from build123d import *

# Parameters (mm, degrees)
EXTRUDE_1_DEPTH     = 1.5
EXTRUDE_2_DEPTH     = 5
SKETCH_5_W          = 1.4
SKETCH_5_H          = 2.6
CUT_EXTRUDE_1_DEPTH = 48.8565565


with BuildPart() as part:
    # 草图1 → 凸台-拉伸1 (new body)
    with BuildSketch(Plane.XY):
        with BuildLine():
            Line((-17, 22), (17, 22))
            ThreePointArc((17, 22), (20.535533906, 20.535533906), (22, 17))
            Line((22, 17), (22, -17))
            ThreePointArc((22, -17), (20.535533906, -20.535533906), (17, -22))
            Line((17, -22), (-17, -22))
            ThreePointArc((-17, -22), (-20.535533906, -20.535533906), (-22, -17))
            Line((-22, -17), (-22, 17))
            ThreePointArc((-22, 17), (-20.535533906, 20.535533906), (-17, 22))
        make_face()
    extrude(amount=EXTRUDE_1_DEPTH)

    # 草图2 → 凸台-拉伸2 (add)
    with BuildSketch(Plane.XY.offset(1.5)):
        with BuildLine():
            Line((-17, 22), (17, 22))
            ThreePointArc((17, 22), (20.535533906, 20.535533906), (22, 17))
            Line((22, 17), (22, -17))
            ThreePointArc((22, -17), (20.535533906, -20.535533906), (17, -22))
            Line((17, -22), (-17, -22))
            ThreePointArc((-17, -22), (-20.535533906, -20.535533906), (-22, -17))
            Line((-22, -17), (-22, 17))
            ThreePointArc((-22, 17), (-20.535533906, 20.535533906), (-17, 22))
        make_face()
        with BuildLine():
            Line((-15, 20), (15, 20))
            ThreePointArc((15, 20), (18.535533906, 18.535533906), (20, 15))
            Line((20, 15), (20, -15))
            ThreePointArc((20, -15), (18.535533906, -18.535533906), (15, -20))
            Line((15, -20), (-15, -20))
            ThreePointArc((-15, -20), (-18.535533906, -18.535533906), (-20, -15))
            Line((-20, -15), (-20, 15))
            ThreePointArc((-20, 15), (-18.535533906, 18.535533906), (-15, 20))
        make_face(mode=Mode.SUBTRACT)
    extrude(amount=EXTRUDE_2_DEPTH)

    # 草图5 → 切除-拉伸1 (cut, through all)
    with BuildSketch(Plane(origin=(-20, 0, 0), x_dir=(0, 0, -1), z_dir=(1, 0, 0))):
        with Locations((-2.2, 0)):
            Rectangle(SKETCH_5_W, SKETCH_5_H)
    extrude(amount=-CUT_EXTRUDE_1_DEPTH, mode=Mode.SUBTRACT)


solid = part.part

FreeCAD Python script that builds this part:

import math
import FreeCAD as App
import Part
import Sketcher

V = App.Vector

doc = App.newDocument("Part")
body = doc.addObject("PartDesign::Body", "Body")

sketch1 = doc.addObject("Sketcher::SketchObject", "Sketch")
body.addObject(sketch1)
sketch1.AttachmentSupport = (doc.XY_Plane, [""])
sketch1.MapMode = "FlatFace"
sketch1.addGeometry(Part.LineSegment(V(17, 22, 0), V(-17, 22, 0)), False)
sketch1.addGeometry(Part.ArcOfCircle(Part.Circle(V(-17, 17, 0), V(0, 0, 1), 5), math.radians(90), math.radians(180)), False)
sketch1.addGeometry(Part.LineSegment(V(-22, 17, 0), V(-22, -17, 0)), False)
sketch1.addGeometry(Part.ArcOfCircle(Part.Circle(V(-17, -17, 0), V(0, 0, 1), 5), math.radians(180), math.radians(270)), False)
sketch1.addGeometry(Part.LineSegment(V(-17, -22, 0), V(17, -22, 0)), False)
sketch1.addGeometry(Part.ArcOfCircle(Part.Circle(V(17, -17, 0), V(0, 0, 1), 5), math.radians(-90), math.radians(0)), False)
sketch1.addGeometry(Part.LineSegment(V(22, -17, 0), V(22, 17, 0)), False)
sketch1.addGeometry(Part.ArcOfCircle(Part.Circle(V(17, 17, 0), V(0, 0, 1), 5), math.radians(0), math.radians(90)), False)
sketch1.addConstraint(Sketcher.Constraint("Tangent", 0, 2, 1, 1))
sketch1.addConstraint(Sketcher.Constraint("Tangent", 1, 2, 2, 1))
sketch1.addConstraint(Sketcher.Constraint("Tangent", 2, 2, 3, 1))
sketch1.addConstraint(Sketcher.Constraint("Tangent", 3, 2, 4, 1))
sketch1.addConstraint(Sketcher.Constraint("Tangent", 4, 2, 5, 1))
sketch1.addConstraint(Sketcher.Constraint("Tangent", 5, 2, 6, 1))
sketch1.addConstraint(Sketcher.Constraint("Tangent", 6, 2, 7, 1))
sketch1.addConstraint(Sketcher.Constraint("Tangent", 7, 2, 0, 1))
sketch1.addConstraint(Sketcher.Constraint("Horizontal", 0))
sketch1.addConstraint(Sketcher.Constraint("Vertical", 2))
sketch1.addConstraint(Sketcher.Constraint("Horizontal", 4))
sketch1.addConstraint(Sketcher.Constraint("Vertical", 6))
sketch1.addConstraint(Sketcher.Constraint("Equal", 1, 3))
sketch1.addConstraint(Sketcher.Constraint("Equal", 3, 5))
sketch1.addConstraint(Sketcher.Constraint("Equal", 5, 7))
sketch1.addConstraint(Sketcher.Constraint("Symmetric", 1, 3, 5, 3, -1, 1))
sketch1.addConstraint(Sketcher.Constraint("Equal", 4, 2))
sketch1.addConstraint(Sketcher.Constraint("Radius", 1, 5.0))
sketch1.addConstraint(Sketcher.Constraint("DistanceX", 0, 2, 0, 1, 34.0))
pad1 = doc.addObject("PartDesign::Pad", "Pad")
body.addObject(pad1)
pad1.Profile = sketch1
pad1.Length = 1.5

sketch2 = doc.addObject("Sketcher::SketchObject", "Sketch001")
body.addObject(sketch2)
sketch2.AttachmentSupport = (doc.XY_Plane, [""])
sketch2.MapMode = "FlatFace"
sketch2.AttachmentOffset = App.Placement(V(0, 0, 1.5), App.Rotation())
sketch2.addGeometry(Part.LineSegment(V(17, 22, 0), V(-17, 22, 0)), False)
sketch2.addGeometry(Part.ArcOfCircle(Part.Circle(V(-17, 17, 0), V(0, 0, 1), 5), math.radians(90), math.radians(180)), False)
sketch2.addGeometry(Part.LineSegment(V(-22, 17, 0), V(-22, -17, 0)), False)
sketch2.addGeometry(Part.ArcOfCircle(Part.Circle(V(-17, -17, 0), V(0, 0, 1), 5), math.radians(180), math.radians(270)), False)
sketch2.addGeometry(Part.LineSegment(V(-17, -22, 0), V(17, -22, 0)), False)
sketch2.addGeometry(Part.ArcOfCircle(Part.Circle(V(17, -17, 0), V(0, 0, 1), 5), math.radians(-90), math.radians(0)), False)
sketch2.addGeometry(Part.LineSegment(V(22, -17, 0), V(22, 17, 0)), False)
sketch2.addGeometry(Part.ArcOfCircle(Part.Circle(V(17, 17, 0), V(0, 0, 1), 5), math.radians(0), math.radians(90)), False)
sketch2.addGeometry(Part.LineSegment(V(-15, 20, 0), V(15, 20, 0)), False)
sketch2.addGeometry(Part.ArcOfCircle(Part.Circle(V(15, 15, 0), V(0, 0, 1), 5), math.radians(0), math.radians(90)), False)
sketch2.addGeometry(Part.LineSegment(V(20, 15, 0), V(20, -15, 0)), False)
sketch2.addGeometry(Part.ArcOfCircle(Part.Circle(V(15, -15, 0), V(0, 0, 1), 5), math.radians(-90), math.radians(0)), False)
sketch2.addGeometry(Part.LineSegment(V(15, -20, 0), V(-15, -20, 0)), False)
sketch2.addGeometry(Part.ArcOfCircle(Part.Circle(V(-15, -15, 0), V(0, 0, 1), 5), math.radians(180), math.radians(270)), False)
sketch2.addGeometry(Part.LineSegment(V(-20, -15, 0), V(-20, 15, 0)), False)
sketch2.addGeometry(Part.ArcOfCircle(Part.Circle(V(-15, 15, 0), V(0, 0, 1), 5), math.radians(90), math.radians(180)), False)
sketch2.addConstraint(Sketcher.Constraint("Tangent", 0, 2, 1, 1))
sketch2.addConstraint(Sketcher.Constraint("Tangent", 1, 2, 2, 1))
sketch2.addConstraint(Sketcher.Constraint("Tangent", 2, 2, 3, 1))
sketch2.addConstraint(Sketcher.Constraint("Tangent", 3, 2, 4, 1))
sketch2.addConstraint(Sketcher.Constraint("Tangent", 4, 2, 5, 1))
sketch2.addConstraint(Sketcher.Constraint("Tangent", 5, 2, 6, 1))
sketch2.addConstraint(Sketcher.Constraint("Tangent", 6, 2, 7, 1))
sketch2.addConstraint(Sketcher.Constraint("Tangent", 7, 2, 0, 1))
sketch2.addConstraint(Sketcher.Constraint("Tangent", 8, 2, 9, 2))
sketch2.addConstraint(Sketcher.Constraint("Tangent", 9, 1, 10, 1))
sketch2.addConstraint(Sketcher.Constraint("Tangent", 10, 2, 11, 2))
sketch2.addConstraint(Sketcher.Constraint("Tangent", 11, 1, 12, 1))
sketch2.addConstraint(Sketcher.Constraint("Tangent", 12, 2, 13, 2))
sketch2.addConstraint(Sketcher.Constraint("Tangent", 13, 1, 14, 1))
sketch2.addConstraint(Sketcher.Constraint("Tangent", 14, 2, 15, 2))
sketch2.addConstraint(Sketcher.Constraint("Tangent", 15, 1, 8, 1))
sketch2.addConstraint(Sketcher.Constraint("Horizontal", 0))
sketch2.addConstraint(Sketcher.Constraint("Vertical", 2))
sketch2.addConstraint(Sketcher.Constraint("Horizontal", 4))
sketch2.addConstraint(Sketcher.Constraint("Vertical", 6))
sketch2.addConstraint(Sketcher.Constraint("Horizontal", 8))
sketch2.addConstraint(Sketcher.Constraint("Vertical", 10))
sketch2.addConstraint(Sketcher.Constraint("Horizontal", 12))
sketch2.addConstraint(Sketcher.Constraint("Vertical", 14))
sketch2.addConstraint(Sketcher.Constraint("Equal", 1, 3))
sketch2.addConstraint(Sketcher.Constraint("Equal", 3, 5))
sketch2.addConstraint(Sketcher.Constraint("Equal", 5, 7))
sketch2.addConstraint(Sketcher.Constraint("Equal", 7, 9))
sketch2.addConstraint(Sketcher.Constraint("Equal", 9, 11))
sketch2.addConstraint(Sketcher.Constraint("Equal", 11, 13))
sketch2.addConstraint(Sketcher.Constraint("Equal", 13, 15))
sketch2.addConstraint(Sketcher.Constraint("Symmetric", 1, 3, 5, 3, -1, 1))
sketch2.addConstraint(Sketcher.Constraint("Symmetric", 9, 3, 13, 3, -1, 1))
sketch2.addConstraint(Sketcher.Constraint("Equal", 4, 2))
sketch2.addConstraint(Sketcher.Constraint("Equal", 12, 10))
sketch2.addConstraint(Sketcher.Constraint("Radius", 1, 5.0))
sketch2.addConstraint(Sketcher.Constraint("DistanceX", 0, 2, 0, 1, 34.0))
sketch2.addConstraint(Sketcher.Constraint("DistanceX", 8, 1, 8, 2, 30.0))
pad2 = doc.addObject("PartDesign::Pad", "Pad001")
body.addObject(pad2)
pad2.Profile = sketch2
pad2.Length = 5

sketch3 = doc.addObject("Sketcher::SketchObject", "Sketch002")
body.addObject(sketch3)
sketch3.AttachmentSupport = (doc.YZ_Plane, [""])
sketch3.MapMode = "FlatFace"
sketch3.AttachmentOffset = App.Placement(V(0, 0, -20), App.Rotation())
sketch3.addGeometry(Part.LineSegment(V(1.3, 2.9, 0), V(-1.3, 2.9, 0)), False)
sketch3.addGeometry(Part.LineSegment(V(-1.3, 2.9, 0), V(-1.3, 1.5, 0)), False)
sketch3.addGeometry(Part.LineSegment(V(-1.3, 1.5, 0), V(1.3, 1.5, 0)), False)
sketch3.addGeometry(Part.LineSegment(V(1.3, 1.5, 0), V(1.3, 2.9, 0)), False)
sketch3.addConstraint(Sketcher.Constraint("Coincident", 0, 2, 1, 1))
sketch3.addConstraint(Sketcher.Constraint("Coincident", 1, 2, 2, 1))
sketch3.addConstraint(Sketcher.Constraint("Coincident", 2, 2, 3, 1))
sketch3.addConstraint(Sketcher.Constraint("Coincident", 3, 2, 0, 1))
sketch3.addConstraint(Sketcher.Constraint("Horizontal", 0))
sketch3.addConstraint(Sketcher.Constraint("Vertical", 1))
sketch3.addConstraint(Sketcher.Constraint("Horizontal", 2))
sketch3.addConstraint(Sketcher.Constraint("Vertical", 3))
sketch3.addConstraint(Sketcher.Constraint("DistanceX", 0, 2, 0, 1, 2.6))
sketch3.addConstraint(Sketcher.Constraint("DistanceY", 1, 2, 1, 1, 1.4))
sketch3.addConstraint(Sketcher.Constraint("DistanceX", 0, 2, -1, 1, 1.3))
sketch3.addConstraint(Sketcher.Constraint("DistanceY", -1, 1, 0, 2, 2.9))
pocket1 = doc.addObject("PartDesign::Pocket", "Pocket")
body.addObject(pocket1)
pocket1.Profile = sketch3
pocket1.Type = "ThroughAll"

doc.recompute()
